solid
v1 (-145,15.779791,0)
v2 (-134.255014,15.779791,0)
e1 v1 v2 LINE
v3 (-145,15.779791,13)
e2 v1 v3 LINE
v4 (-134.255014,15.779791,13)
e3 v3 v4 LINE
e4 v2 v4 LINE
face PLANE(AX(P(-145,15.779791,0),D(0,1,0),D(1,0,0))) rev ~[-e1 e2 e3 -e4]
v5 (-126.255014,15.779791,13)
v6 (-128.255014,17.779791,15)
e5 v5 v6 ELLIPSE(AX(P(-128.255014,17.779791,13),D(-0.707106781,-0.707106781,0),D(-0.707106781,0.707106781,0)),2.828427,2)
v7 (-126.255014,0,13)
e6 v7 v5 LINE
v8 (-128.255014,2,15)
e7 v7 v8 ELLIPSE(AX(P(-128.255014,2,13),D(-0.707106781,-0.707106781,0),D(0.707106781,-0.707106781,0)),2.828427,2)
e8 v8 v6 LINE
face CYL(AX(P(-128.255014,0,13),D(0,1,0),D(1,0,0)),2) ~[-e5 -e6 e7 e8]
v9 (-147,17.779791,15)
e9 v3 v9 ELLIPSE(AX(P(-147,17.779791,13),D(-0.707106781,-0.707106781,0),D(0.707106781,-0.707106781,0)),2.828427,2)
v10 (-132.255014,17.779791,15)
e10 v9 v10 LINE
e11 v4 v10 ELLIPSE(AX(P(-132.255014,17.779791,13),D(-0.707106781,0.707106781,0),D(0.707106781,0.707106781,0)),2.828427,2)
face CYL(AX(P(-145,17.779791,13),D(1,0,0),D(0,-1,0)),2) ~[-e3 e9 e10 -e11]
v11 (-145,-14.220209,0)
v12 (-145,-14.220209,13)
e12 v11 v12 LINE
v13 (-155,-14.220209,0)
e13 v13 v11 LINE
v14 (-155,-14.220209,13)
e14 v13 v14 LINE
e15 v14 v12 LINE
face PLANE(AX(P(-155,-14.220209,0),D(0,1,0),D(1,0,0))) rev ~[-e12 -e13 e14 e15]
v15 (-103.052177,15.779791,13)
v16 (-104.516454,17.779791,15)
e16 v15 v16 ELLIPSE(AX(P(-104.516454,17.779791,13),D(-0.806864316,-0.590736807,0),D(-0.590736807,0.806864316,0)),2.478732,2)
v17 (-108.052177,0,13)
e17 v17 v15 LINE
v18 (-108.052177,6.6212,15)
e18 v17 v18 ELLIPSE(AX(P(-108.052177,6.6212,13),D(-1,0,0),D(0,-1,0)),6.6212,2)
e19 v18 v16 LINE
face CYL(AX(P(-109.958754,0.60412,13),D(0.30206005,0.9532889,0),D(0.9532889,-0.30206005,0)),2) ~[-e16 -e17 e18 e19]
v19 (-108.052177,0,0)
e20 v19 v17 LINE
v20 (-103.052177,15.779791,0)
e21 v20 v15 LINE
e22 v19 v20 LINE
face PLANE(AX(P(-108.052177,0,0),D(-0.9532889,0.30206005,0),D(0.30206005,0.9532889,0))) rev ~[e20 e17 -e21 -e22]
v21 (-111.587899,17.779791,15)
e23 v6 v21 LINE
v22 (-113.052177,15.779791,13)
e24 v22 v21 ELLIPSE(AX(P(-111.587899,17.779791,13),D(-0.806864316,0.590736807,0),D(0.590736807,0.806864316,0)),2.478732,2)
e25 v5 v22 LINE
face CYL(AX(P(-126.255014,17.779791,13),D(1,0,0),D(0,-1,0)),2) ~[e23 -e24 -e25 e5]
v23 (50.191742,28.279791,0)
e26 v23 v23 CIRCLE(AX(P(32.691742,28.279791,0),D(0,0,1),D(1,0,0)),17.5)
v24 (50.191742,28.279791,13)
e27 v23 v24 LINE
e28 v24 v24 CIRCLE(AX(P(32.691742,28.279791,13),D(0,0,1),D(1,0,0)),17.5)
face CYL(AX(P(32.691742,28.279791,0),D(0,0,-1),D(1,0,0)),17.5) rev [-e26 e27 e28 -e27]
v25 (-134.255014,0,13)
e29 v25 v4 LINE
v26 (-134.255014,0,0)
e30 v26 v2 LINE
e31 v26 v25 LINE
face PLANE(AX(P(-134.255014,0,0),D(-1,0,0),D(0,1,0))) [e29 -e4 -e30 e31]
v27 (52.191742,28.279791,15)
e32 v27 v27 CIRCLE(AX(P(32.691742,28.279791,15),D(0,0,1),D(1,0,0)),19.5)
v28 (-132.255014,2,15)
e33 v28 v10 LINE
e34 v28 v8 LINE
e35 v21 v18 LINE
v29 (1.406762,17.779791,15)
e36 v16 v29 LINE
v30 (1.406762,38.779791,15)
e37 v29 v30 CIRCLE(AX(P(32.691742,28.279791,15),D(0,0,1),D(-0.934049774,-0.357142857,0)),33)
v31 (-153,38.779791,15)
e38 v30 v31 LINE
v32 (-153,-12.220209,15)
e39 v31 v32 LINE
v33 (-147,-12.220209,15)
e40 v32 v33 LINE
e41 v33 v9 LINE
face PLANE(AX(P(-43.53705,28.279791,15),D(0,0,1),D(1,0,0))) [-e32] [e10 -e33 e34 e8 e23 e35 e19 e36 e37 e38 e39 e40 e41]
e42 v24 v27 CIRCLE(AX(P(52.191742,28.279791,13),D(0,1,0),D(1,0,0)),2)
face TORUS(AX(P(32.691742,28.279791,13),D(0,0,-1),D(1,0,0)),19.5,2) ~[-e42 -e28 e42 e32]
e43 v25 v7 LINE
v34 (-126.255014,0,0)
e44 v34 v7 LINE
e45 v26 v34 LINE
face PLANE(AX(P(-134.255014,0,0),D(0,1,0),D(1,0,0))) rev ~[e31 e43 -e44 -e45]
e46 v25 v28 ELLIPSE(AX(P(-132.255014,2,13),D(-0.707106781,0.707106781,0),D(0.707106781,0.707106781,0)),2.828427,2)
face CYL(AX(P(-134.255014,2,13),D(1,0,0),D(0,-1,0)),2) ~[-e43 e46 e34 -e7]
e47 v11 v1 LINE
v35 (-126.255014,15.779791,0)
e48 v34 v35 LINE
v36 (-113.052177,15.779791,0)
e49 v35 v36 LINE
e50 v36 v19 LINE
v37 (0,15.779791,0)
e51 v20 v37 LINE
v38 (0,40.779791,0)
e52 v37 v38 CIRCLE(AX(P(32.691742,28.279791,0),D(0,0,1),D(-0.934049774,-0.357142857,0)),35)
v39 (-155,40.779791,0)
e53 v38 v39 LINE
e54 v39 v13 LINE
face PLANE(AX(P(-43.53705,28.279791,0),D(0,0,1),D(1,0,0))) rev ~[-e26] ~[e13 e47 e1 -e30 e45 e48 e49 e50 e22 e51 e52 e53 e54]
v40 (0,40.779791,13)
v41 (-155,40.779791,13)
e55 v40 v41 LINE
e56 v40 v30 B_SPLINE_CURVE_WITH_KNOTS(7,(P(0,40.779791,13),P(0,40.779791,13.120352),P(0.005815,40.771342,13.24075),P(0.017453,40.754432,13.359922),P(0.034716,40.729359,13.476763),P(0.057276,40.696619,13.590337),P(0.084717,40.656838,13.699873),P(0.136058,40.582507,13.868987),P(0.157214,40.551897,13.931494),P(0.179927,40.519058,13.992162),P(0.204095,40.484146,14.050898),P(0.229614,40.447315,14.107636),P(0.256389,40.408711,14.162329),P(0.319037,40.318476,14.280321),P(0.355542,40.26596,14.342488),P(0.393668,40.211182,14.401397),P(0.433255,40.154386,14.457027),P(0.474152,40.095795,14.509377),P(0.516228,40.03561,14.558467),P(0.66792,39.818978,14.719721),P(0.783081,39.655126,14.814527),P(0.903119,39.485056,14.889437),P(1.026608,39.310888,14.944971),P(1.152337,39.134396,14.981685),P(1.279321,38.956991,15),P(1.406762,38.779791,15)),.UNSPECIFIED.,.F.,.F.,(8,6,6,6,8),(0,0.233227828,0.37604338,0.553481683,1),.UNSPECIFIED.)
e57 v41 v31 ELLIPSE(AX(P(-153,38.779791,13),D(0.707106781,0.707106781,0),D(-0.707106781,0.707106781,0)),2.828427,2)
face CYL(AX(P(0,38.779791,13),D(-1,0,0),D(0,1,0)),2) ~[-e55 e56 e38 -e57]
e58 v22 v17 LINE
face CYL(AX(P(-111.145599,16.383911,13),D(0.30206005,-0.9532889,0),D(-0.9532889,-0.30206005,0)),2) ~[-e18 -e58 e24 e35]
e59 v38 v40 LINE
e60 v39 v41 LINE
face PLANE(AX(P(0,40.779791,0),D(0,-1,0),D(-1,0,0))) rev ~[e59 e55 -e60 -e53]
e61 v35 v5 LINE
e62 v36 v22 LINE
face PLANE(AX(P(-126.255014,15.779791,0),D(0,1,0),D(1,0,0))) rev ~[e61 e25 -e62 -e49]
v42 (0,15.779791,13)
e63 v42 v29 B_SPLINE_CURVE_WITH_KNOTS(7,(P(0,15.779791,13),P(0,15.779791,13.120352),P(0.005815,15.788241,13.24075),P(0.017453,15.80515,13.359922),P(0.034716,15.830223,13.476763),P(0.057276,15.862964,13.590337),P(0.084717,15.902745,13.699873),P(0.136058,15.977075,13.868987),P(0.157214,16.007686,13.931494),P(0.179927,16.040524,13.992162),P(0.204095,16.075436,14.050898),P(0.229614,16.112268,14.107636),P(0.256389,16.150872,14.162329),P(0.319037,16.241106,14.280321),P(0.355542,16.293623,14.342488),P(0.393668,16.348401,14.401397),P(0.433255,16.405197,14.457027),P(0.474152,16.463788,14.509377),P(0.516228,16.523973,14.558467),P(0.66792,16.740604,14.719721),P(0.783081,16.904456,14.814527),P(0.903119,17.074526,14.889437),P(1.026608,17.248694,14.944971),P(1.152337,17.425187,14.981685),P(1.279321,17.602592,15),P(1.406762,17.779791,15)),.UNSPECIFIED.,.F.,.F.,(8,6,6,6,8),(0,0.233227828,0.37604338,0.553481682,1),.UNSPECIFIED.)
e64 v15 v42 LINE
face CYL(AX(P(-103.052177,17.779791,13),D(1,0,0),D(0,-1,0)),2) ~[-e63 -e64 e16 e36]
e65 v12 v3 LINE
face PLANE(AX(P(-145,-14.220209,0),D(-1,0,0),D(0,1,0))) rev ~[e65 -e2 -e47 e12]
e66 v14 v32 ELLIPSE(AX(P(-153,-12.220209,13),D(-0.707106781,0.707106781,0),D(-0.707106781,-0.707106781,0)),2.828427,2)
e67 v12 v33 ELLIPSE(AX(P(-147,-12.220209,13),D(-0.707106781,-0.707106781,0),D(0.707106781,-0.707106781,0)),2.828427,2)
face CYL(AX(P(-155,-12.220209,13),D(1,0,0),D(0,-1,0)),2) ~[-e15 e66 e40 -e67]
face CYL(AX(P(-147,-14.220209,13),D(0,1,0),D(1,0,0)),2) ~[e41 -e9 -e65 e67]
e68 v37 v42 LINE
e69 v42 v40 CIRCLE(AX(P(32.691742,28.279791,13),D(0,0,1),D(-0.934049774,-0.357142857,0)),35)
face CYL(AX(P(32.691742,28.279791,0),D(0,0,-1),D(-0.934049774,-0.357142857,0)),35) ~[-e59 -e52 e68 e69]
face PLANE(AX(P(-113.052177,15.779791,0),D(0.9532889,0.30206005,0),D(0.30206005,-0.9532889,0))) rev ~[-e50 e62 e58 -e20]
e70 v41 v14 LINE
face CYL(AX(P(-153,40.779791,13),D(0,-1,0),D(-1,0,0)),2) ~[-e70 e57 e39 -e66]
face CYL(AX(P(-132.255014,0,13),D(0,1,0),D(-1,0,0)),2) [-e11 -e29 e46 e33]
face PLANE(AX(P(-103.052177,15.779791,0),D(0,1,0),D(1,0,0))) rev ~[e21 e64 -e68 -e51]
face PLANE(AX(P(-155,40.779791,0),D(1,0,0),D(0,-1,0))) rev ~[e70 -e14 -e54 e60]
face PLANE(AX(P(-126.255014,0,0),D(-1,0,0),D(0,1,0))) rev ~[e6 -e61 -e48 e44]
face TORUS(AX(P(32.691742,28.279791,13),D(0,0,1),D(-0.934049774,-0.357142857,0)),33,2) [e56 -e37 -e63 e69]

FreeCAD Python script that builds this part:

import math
import FreeCAD as App
import Part
import Sketcher
from FreeCAD import Vector
Q = App.Units.Quantity


def edges_at(feature, points):
    """Names of the edges that pass closest to the given points."""
    edges = feature.Shape.Edges
    near = lambda p: min(range(len(edges)), key=lambda i: edges[i].distToShape(Part.Vertex(*p))[0])
    return sorted({f"Edge{near(p) + 1}" for p in points})

doc = App.newDocument("Part")
body = doc.addObject("PartDesign::Body", "Body")

# Sketch on XY plane
sketch1 = body.newObject("Sketcher::SketchObject", "Sketch")
sketch1.AttachmentSupport = (doc.getObject("XY_Plane"), [""])
sketch1.MapMode = "FlatFace"
sketch1.addGeometry(Part.ArcOfCircle(Part.Circle(Vector(33, 28, 0), Vector(0, 0, 1), 35), math.radians(-159), math.radians(159)), False)
sketch1.addGeometry(Part.LineSegment(Vector(0, 41, 0), Vector(-155, 41, 0)), False)
sketch1.addGeometry(Part.LineSegment(Vector(-155, 41, 0), Vector(-155, -14, 0)), False)
sketch1.addGeometry(Part.LineSegment(Vector(-155, -14, 0), Vector(-145, -14, 0)), False)
sketch1.addGeometry(Part.LineSegment(Vector(-145, -14, 0), Vector(-145, 16, 0)), False)
sketch1.addGeometry(Part.LineSegment(Vector(-145, 16, 0), Vector(-134, 16, 0)), False)
sketch1.addGeometry(Part.LineSegment(Vector(-134, 16, 0), Vector(-134, 0, 0)), False)
sketch1.addGeometry(Part.LineSegment(Vector(-134, 0, 0), Vector(-126, 0, 0)), False)
sketch1.addGeometry(Part.LineSegment(Vector(-126, 0, 0), Vector(-126, 16, 0)), False)
sketch1.addGeometry(Part.LineSegment(Vector(-126, 16, 0), Vector(-113, 16, 0)), False)
sketch1.addGeometry(Part.LineSegment(Vector(-113, 16, 0), Vector(-108, 0, 0)), False)
sketch1.addGeometry(Part.LineSegment(Vector(-108, 0, 0), Vector(-103, 16, 0)), False)
sketch1.addGeometry(Part.LineSegment(Vector(-103, 16, 0), Vector(0, 16, 0)), False)
sketch1.addGeometry(Part.Circle(Vector(33, 28, 0), Vector(0, 0, 1), 18), False)
sketch1.addConstraint(Sketcher.Constraint("Coincident", 0, 2, 1, 1))
sketch1.addConstraint(Sketcher.Constraint("Coincident", 1, 2, 2, 1))
sketch1.addConstraint(Sketcher.Constraint("Coincident", 2, 2, 3, 1))
sketch1.addConstraint(Sketcher.Constraint("Coincident", 3, 2, 4, 1))
sketch1.addConstraint(Sketcher.Constraint("Coincident", 4, 2, 5, 1))
sketch1.addConstraint(Sketcher.Constraint("Coincident", 5, 2, 6, 1))
sketch1.addConstraint(Sketcher.Constraint("Coincident", 6, 2, 7, 1))
sketch1.addConstraint(Sketcher.Constraint("Coincident", 7, 2, 8, 1))
sketch1.addConstraint(Sketcher.Constraint("Coincident", 8, 2, 9, 1))
sketch1.addConstraint(Sketcher.Constraint("Coincident", 9, 2, 10, 1))
sketch1.addConstraint(Sketcher.Constraint("Coincident", 10, 2, 11, 1))
sketch1.addConstraint(Sketcher.Constraint("Coincident", 11, 2, 12, 1))
sketch1.addConstraint(Sketcher.Constraint("Coincident", 12, 2, 0, 1))
sketch1.addConstraint(Sketcher.Constraint("Horizontal", 1))
sketch1.addConstraint(Sketcher.Constraint("Vertical", 2))
sketch1.addConstraint(Sketcher.Constraint("Horizontal", 3))
sketch1.addConstraint(Sketcher.Constraint("Vertical", 4))
sketch1.addConstraint(Sketcher.Constraint("Horizontal", 5))
sketch1.addConstraint(Sketcher.Constraint("Vertical", 6))
sketch1.addConstraint(Sketcher.Constraint("Horizontal", 7))
sketch1.addConstraint(Sketcher.Constraint("Vertical", 8))
sketch1.addConstraint(Sketcher.Constraint("Horizontal", 9))
sketch1.addConstraint(Sketcher.Constraint("Horizontal", 12))
sketch1.addConstraint(Sketcher.Constraint("Coincident", 13, 3, 0, 3))
sketch1.addConstraint(Sketcher.Constraint("PointOnObject", 0, 2, -2))
sketch1.addConstraint(Sketcher.Constraint("PointOnObject", 6, 2, -1))
sketch1.addConstraint(Sketcher.Constraint("PointOnObject", 10, 2, -1))
sketch1.addConstraint(Sketcher.Constraint("PointOnObject", 12, 2, -2))
sketch1.addConstraint(Sketcher.Constraint("Horizontal", 5, 2, 8, 2))
sketch1.addConstraint(Sketcher.Constraint("Horizontal", 9, 2, 11, 2))
sketch1.addConstraint(Sketcher.Constraint("Equal", 10, 11))
sketch1.addConstraint(Sketcher.Constraint("Diameter", 13, Q("35 mm")))
sketch1.addConstraint(Sketcher.Constraint("Radius", 0, Q("35 mm")))
sketch1.addConstraint(Sketcher.Constraint("DistanceX", 1, 2, 1, 1, Q("155 mm")))
sketch1.addConstraint(Sketcher.Constraint("DistanceX", 3, 1, 3, 2, Q("10 mm")))
sketch1.addConstraint(Sketcher.Constraint("DistanceX", 7, 1, 7, 2, Q("8 mm")))
sketch1.addConstraint(Sketcher.Constraint("DistanceY", 2, 2, 2, 1, Q("55 mm")))
sketch1.addConstraint(Sketcher.Constraint("DistanceY", 4, 1, 4, 2, Q("30 mm")))
sketch1.addConstraint(Sketcher.Constraint("DistanceX", 9, 2, 10, 2, Q("5 mm")))
sketch1.addConstraint(Sketcher.Constraint("Distance", 10, Q("16.553 mm")))
sketch1.addConstraint(Sketcher.Constraint("DistanceX", 5, 1, 5, 2, Q("10.744986 mm")))
sketch1.addConstraint(Sketcher.Constraint("DistanceX", 9, 1, 9, 2, Q("13.202838 mm")))
pad1 = body.newObject("PartDesign::Pad", "Pad")
pad1.Profile = sketch1
pad1.Length = 15
doc.recompute()

fillet = body.newObject("PartDesign::Fillet", "Fillet")
fillet.Base = (pad1, edges_at(pad1, [
    (-139.628, 15.78, 15),
    (-134.255, 7.89, 15),
    (-130.255, 0, 15),
    (-126.255, 7.89, 15),
    (-119.654, 15.78, 15),
    (-110.552, 7.89, 15),
    (-105.552, 7.89, 15),
    (-51.526, 15.78, 15),
    (67.692, 28.28, 15),
    (-77.5, 40.78, 15),
    (-155, 13.28, 15),
    (-150, -14.22, 15),
    (-145, 0.78, 15),
    (15.192, 28.28, 15),
]))
fillet.Radius = 2

doc.recompute()
